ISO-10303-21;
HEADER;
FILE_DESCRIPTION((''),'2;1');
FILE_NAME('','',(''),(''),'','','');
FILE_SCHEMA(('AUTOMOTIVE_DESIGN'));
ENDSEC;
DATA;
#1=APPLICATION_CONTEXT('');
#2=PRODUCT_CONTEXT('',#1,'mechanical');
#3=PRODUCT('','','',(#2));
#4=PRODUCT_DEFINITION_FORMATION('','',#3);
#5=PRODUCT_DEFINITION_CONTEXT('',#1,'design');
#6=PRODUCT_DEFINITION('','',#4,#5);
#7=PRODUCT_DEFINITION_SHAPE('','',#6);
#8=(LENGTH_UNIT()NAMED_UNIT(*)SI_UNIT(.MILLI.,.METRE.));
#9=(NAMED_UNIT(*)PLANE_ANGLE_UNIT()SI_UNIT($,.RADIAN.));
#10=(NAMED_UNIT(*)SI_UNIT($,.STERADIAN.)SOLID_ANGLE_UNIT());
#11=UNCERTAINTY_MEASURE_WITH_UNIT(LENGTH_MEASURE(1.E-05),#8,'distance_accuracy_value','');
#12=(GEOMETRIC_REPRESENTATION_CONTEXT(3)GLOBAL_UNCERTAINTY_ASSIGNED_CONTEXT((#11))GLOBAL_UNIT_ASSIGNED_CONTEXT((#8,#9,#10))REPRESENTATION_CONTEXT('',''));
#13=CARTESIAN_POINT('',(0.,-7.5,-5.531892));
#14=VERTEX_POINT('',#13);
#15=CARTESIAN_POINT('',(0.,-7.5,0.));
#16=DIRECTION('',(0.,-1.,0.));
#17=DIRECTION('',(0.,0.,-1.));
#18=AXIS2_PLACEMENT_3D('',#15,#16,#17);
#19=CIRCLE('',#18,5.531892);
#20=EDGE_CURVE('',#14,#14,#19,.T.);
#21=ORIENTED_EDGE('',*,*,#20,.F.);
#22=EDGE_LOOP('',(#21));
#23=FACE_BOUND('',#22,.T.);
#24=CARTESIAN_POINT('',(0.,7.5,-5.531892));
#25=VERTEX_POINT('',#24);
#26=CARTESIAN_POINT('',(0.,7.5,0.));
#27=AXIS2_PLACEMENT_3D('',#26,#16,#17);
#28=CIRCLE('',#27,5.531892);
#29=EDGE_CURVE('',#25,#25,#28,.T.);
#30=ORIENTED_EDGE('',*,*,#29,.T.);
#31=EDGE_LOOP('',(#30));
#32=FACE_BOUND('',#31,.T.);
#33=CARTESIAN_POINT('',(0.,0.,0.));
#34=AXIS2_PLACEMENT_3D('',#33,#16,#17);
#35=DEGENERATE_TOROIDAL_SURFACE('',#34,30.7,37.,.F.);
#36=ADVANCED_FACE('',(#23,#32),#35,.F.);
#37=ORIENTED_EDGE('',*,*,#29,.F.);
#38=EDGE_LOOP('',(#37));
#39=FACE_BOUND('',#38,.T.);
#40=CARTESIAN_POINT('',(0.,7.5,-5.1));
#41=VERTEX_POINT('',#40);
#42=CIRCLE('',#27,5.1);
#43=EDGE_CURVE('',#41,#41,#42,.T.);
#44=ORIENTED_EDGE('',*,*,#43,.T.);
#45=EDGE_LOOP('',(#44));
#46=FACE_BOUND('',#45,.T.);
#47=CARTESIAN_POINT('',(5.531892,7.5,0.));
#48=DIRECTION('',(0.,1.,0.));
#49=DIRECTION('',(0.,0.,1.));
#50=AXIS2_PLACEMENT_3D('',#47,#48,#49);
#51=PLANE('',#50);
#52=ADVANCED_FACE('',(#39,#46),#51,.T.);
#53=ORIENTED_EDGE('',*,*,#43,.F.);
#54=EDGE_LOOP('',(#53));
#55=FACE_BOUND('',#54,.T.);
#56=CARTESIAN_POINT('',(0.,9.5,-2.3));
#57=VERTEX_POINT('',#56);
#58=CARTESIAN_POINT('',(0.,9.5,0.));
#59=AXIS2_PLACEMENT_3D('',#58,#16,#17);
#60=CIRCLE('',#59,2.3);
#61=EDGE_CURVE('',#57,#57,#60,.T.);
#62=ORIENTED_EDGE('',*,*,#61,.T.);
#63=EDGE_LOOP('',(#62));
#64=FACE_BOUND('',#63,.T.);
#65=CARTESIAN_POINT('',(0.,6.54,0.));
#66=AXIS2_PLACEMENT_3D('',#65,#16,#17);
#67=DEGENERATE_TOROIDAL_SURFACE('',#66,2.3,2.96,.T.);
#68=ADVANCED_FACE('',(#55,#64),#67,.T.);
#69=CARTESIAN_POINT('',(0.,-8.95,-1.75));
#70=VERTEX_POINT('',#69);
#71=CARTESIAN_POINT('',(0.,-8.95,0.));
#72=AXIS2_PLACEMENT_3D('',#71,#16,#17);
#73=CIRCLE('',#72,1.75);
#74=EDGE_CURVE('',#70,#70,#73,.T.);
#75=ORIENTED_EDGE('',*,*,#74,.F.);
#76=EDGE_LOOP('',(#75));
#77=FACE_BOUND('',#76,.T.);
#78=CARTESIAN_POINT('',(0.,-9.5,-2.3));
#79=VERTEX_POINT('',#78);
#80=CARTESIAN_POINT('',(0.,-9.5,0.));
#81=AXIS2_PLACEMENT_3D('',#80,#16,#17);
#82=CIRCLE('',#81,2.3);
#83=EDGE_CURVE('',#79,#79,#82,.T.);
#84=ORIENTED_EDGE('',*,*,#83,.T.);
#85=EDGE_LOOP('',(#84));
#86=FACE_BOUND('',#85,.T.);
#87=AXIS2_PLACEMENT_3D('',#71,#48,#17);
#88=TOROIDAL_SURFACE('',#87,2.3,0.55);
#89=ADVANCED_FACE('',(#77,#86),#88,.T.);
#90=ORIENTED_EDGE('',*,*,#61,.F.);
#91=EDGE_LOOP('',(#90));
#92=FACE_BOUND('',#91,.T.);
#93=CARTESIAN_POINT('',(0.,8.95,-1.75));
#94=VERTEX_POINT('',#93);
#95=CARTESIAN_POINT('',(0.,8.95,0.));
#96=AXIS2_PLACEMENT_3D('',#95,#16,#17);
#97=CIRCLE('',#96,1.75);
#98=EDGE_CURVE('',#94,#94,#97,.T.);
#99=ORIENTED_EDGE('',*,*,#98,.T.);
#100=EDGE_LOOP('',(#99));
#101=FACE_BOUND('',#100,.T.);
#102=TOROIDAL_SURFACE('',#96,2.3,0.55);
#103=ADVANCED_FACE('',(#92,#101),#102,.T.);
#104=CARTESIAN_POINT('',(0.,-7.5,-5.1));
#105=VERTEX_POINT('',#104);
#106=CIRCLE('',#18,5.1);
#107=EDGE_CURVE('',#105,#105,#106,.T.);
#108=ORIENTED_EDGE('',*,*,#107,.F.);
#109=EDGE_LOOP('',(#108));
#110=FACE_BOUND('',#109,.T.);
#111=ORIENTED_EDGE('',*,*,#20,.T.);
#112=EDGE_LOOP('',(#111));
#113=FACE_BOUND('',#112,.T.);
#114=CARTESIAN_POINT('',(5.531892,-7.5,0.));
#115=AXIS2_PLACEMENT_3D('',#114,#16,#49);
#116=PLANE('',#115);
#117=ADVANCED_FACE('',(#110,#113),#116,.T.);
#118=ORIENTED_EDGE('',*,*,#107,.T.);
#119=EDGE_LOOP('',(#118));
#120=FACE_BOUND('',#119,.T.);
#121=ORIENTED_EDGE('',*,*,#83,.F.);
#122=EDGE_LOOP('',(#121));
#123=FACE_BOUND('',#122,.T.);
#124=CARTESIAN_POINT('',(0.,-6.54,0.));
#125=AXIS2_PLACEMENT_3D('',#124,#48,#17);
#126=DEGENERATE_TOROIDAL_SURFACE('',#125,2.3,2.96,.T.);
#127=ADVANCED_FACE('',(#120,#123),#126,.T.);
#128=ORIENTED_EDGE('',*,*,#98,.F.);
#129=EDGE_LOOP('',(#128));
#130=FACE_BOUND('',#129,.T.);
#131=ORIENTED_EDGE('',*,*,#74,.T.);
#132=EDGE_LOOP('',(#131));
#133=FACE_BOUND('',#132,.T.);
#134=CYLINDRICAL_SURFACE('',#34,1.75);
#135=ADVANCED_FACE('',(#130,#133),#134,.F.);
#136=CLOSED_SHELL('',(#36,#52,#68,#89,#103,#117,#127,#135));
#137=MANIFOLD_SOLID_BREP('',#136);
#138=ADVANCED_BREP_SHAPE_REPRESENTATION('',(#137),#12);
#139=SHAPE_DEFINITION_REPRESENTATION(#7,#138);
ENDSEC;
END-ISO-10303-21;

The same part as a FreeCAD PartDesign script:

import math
import FreeCAD as App
import Part
import Sketcher

V = App.Vector

doc = App.newDocument("Part")
body = doc.addObject("PartDesign::Body", "Body")

# Sketch on XY plane
sketch1 = body.newObject("Sketcher::SketchObject", "Sketch")
sketch1.AttachmentSupport = (doc.getObject("XY_Plane"), [""])
sketch1.MapMode = "FlatFace"
sketch1.addGeometry([
    Part.LineSegment(V(1.75, 0, 0), V(6.3, 0, 0)),  # 0
    Part.ArcOfCircle(Part.Circle(V(-30.7, 0, 0), V(0, 0, 1), 37), math.radians(0), math.radians(11.69505)),  # 1
    Part.LineSegment(V(5.531892, 7.5, 0), V(5.1, 7.5, 0)),  # 2
    Part.ArcOfCircle(Part.Circle(V(2.3, 6.54, 0), V(0, 0, 1), 2.96), math.radians(18.924644), math.radians(90)),  # 3
    Part.ArcOfCircle(Part.Circle(V(2.3, 8.95, 0), V(0, 0, 1), 0.55), math.radians(90), math.radians(180)),  # 4
    Part.LineSegment(V(1.75, 8.95, 0), V(1.75, 0, 0)),  # 5
], False)
sketch1.addConstraint([
    Sketcher.Constraint("Coincident", 0, 2, 1, 1),
    Sketcher.Constraint("Coincident", 1, 2, 2, 1),
    Sketcher.Constraint("Coincident", 2, 2, 3, 1),
    Sketcher.Constraint("Tangent", 3, 2, 4, 1),
    Sketcher.Constraint("Tangent", 4, 2, 5, 1),
    Sketcher.Constraint("Coincident", 5, 2, 0, 1),
    Sketcher.Constraint("Horizontal", 0),
    Sketcher.Constraint("Horizontal", 2),
    Sketcher.Constraint("Vertical", 5),
    Sketcher.Constraint("PointOnObject", 1, 3, -1),
    Sketcher.Constraint("PointOnObject", 0, 2, -1),
    Sketcher.Constraint("Vertical", 3, 3, 4, 3),
    Sketcher.Constraint("Radius", 1, 37.0),
    Sketcher.Constraint("Radius", 3, 2.96),
    Sketcher.Constraint("Radius", 4, 0.55),
    Sketcher.Constraint("DistanceX", 1, 3, 3, 3, 33.0),
    Sketcher.Constraint("DistanceY", 2, 2, 3, 2, 2.0),
    Sketcher.Constraint("DistanceY", 5, 2, 5, 1, 8.95),
    Sketcher.Constraint("DistanceX", 1, 3, -1, 1, 30.7),
])
revolution = body.newObject("PartDesign::Revolution", "Revolution")
revolution.Profile = sketch1
revolution.ReferenceAxis = (sketch1, ["V_Axis"])
revolution.Angle = 360
doc.recompute()

mirrored = body.newObject("PartDesign::Mirrored", "Mirrored")
mirrored.Originals = [revolution]
mirrored.MirrorPlane = (doc.getObject("XZ_Plane"), [""])
body.Tip = mirrored

doc.recompute()
